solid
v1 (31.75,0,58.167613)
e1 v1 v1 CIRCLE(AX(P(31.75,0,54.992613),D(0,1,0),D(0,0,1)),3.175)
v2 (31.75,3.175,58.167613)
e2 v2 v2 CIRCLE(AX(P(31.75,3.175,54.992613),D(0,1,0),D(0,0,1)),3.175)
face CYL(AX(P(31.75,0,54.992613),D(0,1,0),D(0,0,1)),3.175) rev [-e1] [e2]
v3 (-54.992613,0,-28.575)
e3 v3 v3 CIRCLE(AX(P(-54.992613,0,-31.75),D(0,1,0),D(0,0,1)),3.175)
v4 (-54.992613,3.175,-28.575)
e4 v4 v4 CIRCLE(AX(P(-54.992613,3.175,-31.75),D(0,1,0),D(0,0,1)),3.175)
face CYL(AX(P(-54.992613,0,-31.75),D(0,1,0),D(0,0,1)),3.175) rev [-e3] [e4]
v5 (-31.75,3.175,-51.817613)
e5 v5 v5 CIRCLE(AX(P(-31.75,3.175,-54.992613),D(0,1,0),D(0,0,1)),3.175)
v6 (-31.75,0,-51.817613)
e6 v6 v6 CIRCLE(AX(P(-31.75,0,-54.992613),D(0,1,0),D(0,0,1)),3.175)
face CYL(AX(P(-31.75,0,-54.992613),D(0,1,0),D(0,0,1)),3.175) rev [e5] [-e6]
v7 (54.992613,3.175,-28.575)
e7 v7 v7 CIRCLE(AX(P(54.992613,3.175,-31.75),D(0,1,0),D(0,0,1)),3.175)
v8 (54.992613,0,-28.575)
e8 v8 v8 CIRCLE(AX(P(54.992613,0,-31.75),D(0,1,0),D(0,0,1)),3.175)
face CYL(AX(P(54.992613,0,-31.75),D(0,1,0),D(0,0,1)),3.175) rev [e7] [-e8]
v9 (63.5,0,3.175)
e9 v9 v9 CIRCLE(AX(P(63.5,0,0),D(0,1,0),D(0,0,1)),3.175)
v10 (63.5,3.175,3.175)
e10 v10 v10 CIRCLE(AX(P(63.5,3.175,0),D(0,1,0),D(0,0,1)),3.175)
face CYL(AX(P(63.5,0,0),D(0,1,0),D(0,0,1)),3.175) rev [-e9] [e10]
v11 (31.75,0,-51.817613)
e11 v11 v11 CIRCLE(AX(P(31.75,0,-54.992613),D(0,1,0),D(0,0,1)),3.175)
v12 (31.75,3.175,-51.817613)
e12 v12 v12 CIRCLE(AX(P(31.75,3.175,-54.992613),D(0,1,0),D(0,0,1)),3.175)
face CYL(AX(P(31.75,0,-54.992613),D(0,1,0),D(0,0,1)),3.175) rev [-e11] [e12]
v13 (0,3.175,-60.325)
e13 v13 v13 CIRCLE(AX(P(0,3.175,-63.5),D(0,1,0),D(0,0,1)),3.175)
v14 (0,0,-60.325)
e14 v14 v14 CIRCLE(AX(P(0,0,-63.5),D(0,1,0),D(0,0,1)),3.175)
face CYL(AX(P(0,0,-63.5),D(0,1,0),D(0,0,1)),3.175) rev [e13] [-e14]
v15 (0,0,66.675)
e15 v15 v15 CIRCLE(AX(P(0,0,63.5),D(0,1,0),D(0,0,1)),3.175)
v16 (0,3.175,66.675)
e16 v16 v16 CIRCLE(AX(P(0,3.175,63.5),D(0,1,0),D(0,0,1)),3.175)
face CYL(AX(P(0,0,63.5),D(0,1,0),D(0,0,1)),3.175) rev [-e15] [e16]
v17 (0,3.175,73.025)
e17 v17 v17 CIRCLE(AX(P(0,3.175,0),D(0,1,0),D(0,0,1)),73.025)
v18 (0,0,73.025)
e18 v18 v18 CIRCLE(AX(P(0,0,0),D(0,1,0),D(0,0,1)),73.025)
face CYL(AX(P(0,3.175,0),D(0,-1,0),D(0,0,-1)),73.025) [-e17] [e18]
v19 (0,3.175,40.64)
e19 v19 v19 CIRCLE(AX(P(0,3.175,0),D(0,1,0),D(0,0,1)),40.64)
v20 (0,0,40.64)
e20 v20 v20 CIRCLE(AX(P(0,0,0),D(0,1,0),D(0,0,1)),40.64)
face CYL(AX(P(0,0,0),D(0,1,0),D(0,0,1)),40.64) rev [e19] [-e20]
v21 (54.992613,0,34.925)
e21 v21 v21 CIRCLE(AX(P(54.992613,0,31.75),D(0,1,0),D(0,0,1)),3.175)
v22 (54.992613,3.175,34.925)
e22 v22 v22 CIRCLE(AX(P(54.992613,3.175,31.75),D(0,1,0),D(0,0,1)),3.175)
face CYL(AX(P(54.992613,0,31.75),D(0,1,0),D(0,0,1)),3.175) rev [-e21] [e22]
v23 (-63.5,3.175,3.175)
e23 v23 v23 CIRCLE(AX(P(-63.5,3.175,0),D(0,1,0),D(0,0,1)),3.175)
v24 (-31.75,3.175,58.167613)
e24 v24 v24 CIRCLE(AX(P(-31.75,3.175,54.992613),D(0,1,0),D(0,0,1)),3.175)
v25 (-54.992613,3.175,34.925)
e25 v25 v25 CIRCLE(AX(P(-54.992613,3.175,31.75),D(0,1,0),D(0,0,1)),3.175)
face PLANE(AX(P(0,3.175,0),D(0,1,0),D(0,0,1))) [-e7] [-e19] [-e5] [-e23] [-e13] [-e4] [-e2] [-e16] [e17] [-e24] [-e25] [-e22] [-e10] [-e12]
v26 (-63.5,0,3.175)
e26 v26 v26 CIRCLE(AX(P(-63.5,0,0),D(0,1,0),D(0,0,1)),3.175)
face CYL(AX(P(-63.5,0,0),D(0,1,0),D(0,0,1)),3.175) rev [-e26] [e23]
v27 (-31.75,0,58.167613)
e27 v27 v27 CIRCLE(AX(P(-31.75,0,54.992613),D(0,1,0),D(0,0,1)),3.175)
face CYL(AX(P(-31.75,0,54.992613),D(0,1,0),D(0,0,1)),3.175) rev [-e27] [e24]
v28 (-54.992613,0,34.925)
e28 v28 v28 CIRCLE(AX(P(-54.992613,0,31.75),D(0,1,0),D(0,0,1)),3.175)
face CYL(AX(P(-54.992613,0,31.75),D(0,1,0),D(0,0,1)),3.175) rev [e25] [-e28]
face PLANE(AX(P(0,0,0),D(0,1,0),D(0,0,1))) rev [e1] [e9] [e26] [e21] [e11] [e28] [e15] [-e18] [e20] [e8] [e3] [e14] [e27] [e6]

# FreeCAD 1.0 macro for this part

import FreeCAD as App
import Part
import Sketcher
Q = App.Units.Quantity

doc = App.newDocument("Part")
params = doc.addObject("Spreadsheet::Sheet", "Params")
for row, (alias, value) in enumerate([
    ("sketch1_diameter", "5.75 in"),
    ("pad1_length", "0.125 in"),
    ("sketch2_diameter", "0.25 in"),
    ("sketch3_diameter", "3.2 in"),
], start=1):
    params.set(f"A{row}", alias)
    params.set(f"B{row}", "=" + value)
    params.setAlias(f"B{row}", alias)

body = doc.addObject("PartDesign::Body", "Body")

sketch1 = body.newObject("Sketcher::SketchObject", "Sketch")
sketch1.AttachmentSupport = (doc.getObject("XZ_Plane"), [""])
sketch1.MapMode = "FlatFace"
sketch1.addGeometry(Part.Circle(App.Vector(0, 0, 0), App.Vector(0, 0, 1), 73), False)
sketch1.addConstraint(Sketcher.Constraint("Coincident", 0, 3, -1, 1))
sketch1.addConstraint(Sketcher.Constraint("Diameter", 0, Q("5.75 in")))
sketch1.setExpression("Constraints[1]", "Params.sketch1_diameter")
pad1 = body.newObject("PartDesign::Pad", "Pad")
pad1.Profile = sketch1
pad1.setExpression("Length", "Params.pad1_length")
pad1.Reversed = True

sketch2 = body.newObject("Sketcher::SketchObject", "Sketch001")
sketch2.AttachmentSupport = (doc.getObject("XZ_Plane"), [""])
sketch2.MapMode = "FlatFace"
sketch2.AttachmentOffset = App.Placement(App.Vector(0, 0, -0.125 * 25.4), App.Rotation())
sketch2.addGeometry(Part.Circle(App.Vector(63.5, 0, 0), App.Vector(0, 0, 1), 3.2), False)
sketch2.addGeometry(Part.Circle(App.Vector(55, 31.8, 0), App.Vector(0, 0, 1), 3.2), False)
sketch2.addGeometry(Part.Circle(App.Vector(31.8, 55, 0), App.Vector(0, 0, 1), 3.2), False)
sketch2.addGeometry(Part.Circle(App.Vector(0, 63.5, 0), App.Vector(0, 0, 1), 3.2), False)
sketch2.addGeometry(Part.Circle(App.Vector(-31.8, 55, 0), App.Vector(0, 0, 1), 3.2), False)
sketch2.addGeometry(Part.Circle(App.Vector(-55, 31.8, 0), App.Vector(0, 0, 1), 3.2), False)
sketch2.addGeometry(Part.Circle(App.Vector(-63.5, 0, 0), App.Vector(0, 0, 1), 3.2), False)
sketch2.addGeometry(Part.Circle(App.Vector(-55, -31.8, 0), App.Vector(0, 0, 1), 3.2), False)
sketch2.addGeometry(Part.Circle(App.Vector(-31.8, -55, 0), App.Vector(0, 0, 1), 3.2), False)
sketch2.addGeometry(Part.Circle(App.Vector(0, -63.5, 0), App.Vector(0, 0, 1), 3.2), False)
sketch2.addGeometry(Part.Circle(App.Vector(31.8, -55, 0), App.Vector(0, 0, 1), 3.2), False)
sketch2.addGeometry(Part.Circle(App.Vector(55, -31.8, 0), App.Vector(0, 0, 1), 3.2), False)
sketch2.addConstraint(Sketcher.Constraint("Equal", 0, 1))
sketch2.addConstraint(Sketcher.Constraint("Equal", 1, 2))
sketch2.addConstraint(Sketcher.Constraint("Equal", 2, 3))
sketch2.addConstraint(Sketcher.Constraint("Equal", 3, 4))
sketch2.addConstraint(Sketcher.Constraint("Equal", 4, 5))
sketch2.addConstraint(Sketcher.Constraint("Equal", 5, 6))
sketch2.addConstraint(Sketcher.Constraint("Equal", 6, 7))
sketch2.addConstraint(Sketcher.Constraint("Equal", 7, 8))
sketch2.addConstraint(Sketcher.Constraint("Equal", 8, 9))
sketch2.addConstraint(Sketcher.Constraint("Equal", 9, 10))
sketch2.addConstraint(Sketcher.Constraint("Equal", 10, 11))
sketch2.addConstraint(Sketcher.Constraint("Symmetric", 0, 3, 6, 3, -1, 1))
sketch2.addConstraint(Sketcher.Constraint("Symmetric", 1, 3, 7, 3, -1, 1))
sketch2.addConstraint(Sketcher.Constraint("Symmetric", 2, 3, 8, 3, -1, 1))
sketch2.addConstraint(Sketcher.Constraint("Symmetric", 3, 3, 9, 3, -1, 1))
sketch2.addConstraint(Sketcher.Constraint("Symmetric", 4, 3, 10, 3, -1, 1))
sketch2.addConstraint(Sketcher.Constraint("Symmetric", 5, 3, 11, 3, -1, 1))
sketch2.addConstraint(Sketcher.Constraint("Symmetric", 2, 3, 4, 3, -2))
sketch2.addConstraint(Sketcher.Constraint("Symmetric", 1, 3, 5, 3, -2))
sketch2.addConstraint(Sketcher.Constraint("PointOnObject", 0, 3, -1))
sketch2.addConstraint(Sketcher.Constraint("PointOnObject", 3, 3, -2))
sketch2.addConstraint(Sketcher.Constraint("Diameter", 0, Q("0.25 in")))
sketch2.addConstraint(Sketcher.Constraint("DistanceX", -1, 1, 0, 3, Q("2.5 in")))
sketch2.addConstraint(Sketcher.Constraint("DistanceY", -1, 1, 3, 3, Q("2.5 in")))
sketch2.addConstraint(Sketcher.Constraint("DistanceX", 4, 3, 2, 3, Q("2.5 in")))
sketch2.addConstraint(Sketcher.Constraint("DistanceY", 7, 3, 5, 3, Q("2.5 in")))
sketch2.addConstraint(Sketcher.Constraint("DistanceX", -1, 1, 1, 3, 54.992613))
sketch2.addConstraint(Sketcher.Constraint("DistanceY", -1, 1, 2, 3, 54.992613))
sketch2.setExpression("Constraints[21]", "Params.sketch2_diameter")
pocket1 = body.newObject("PartDesign::Pocket", "Pocket")
pocket1.Profile = sketch2
pocket1.Type = "ThroughAll"
pocket1.Reversed = True

sketch3 = body.newObject("Sketcher::SketchObject", "Sketch002")
sketch3.AttachmentSupport = (doc.getObject("XZ_Plane"), [""])
sketch3.MapMode = "FlatFace"
sketch3.AttachmentOffset = App.Placement(App.Vector(0, 0, -0.125 * 25.4), App.Rotation())
sketch3.addGeometry(Part.Circle(App.Vector(0, 0, 0), App.Vector(0, 0, 1), 41), False)
sketch3.addConstraint(Sketcher.Constraint("Coincident", 0, 3, -1, 1))
sketch3.addConstraint(Sketcher.Constraint("Diameter", 0, Q("3.2 in")))
sketch3.setExpression("Constraints[1]", "Params.sketch3_diameter")
pocket2 = body.newObject("PartDesign::Pocket", "Pocket001")
pocket2.Profile = sketch3
pocket2.Type = "ThroughAll"
pocket2.Reversed = True

doc.recompute()
